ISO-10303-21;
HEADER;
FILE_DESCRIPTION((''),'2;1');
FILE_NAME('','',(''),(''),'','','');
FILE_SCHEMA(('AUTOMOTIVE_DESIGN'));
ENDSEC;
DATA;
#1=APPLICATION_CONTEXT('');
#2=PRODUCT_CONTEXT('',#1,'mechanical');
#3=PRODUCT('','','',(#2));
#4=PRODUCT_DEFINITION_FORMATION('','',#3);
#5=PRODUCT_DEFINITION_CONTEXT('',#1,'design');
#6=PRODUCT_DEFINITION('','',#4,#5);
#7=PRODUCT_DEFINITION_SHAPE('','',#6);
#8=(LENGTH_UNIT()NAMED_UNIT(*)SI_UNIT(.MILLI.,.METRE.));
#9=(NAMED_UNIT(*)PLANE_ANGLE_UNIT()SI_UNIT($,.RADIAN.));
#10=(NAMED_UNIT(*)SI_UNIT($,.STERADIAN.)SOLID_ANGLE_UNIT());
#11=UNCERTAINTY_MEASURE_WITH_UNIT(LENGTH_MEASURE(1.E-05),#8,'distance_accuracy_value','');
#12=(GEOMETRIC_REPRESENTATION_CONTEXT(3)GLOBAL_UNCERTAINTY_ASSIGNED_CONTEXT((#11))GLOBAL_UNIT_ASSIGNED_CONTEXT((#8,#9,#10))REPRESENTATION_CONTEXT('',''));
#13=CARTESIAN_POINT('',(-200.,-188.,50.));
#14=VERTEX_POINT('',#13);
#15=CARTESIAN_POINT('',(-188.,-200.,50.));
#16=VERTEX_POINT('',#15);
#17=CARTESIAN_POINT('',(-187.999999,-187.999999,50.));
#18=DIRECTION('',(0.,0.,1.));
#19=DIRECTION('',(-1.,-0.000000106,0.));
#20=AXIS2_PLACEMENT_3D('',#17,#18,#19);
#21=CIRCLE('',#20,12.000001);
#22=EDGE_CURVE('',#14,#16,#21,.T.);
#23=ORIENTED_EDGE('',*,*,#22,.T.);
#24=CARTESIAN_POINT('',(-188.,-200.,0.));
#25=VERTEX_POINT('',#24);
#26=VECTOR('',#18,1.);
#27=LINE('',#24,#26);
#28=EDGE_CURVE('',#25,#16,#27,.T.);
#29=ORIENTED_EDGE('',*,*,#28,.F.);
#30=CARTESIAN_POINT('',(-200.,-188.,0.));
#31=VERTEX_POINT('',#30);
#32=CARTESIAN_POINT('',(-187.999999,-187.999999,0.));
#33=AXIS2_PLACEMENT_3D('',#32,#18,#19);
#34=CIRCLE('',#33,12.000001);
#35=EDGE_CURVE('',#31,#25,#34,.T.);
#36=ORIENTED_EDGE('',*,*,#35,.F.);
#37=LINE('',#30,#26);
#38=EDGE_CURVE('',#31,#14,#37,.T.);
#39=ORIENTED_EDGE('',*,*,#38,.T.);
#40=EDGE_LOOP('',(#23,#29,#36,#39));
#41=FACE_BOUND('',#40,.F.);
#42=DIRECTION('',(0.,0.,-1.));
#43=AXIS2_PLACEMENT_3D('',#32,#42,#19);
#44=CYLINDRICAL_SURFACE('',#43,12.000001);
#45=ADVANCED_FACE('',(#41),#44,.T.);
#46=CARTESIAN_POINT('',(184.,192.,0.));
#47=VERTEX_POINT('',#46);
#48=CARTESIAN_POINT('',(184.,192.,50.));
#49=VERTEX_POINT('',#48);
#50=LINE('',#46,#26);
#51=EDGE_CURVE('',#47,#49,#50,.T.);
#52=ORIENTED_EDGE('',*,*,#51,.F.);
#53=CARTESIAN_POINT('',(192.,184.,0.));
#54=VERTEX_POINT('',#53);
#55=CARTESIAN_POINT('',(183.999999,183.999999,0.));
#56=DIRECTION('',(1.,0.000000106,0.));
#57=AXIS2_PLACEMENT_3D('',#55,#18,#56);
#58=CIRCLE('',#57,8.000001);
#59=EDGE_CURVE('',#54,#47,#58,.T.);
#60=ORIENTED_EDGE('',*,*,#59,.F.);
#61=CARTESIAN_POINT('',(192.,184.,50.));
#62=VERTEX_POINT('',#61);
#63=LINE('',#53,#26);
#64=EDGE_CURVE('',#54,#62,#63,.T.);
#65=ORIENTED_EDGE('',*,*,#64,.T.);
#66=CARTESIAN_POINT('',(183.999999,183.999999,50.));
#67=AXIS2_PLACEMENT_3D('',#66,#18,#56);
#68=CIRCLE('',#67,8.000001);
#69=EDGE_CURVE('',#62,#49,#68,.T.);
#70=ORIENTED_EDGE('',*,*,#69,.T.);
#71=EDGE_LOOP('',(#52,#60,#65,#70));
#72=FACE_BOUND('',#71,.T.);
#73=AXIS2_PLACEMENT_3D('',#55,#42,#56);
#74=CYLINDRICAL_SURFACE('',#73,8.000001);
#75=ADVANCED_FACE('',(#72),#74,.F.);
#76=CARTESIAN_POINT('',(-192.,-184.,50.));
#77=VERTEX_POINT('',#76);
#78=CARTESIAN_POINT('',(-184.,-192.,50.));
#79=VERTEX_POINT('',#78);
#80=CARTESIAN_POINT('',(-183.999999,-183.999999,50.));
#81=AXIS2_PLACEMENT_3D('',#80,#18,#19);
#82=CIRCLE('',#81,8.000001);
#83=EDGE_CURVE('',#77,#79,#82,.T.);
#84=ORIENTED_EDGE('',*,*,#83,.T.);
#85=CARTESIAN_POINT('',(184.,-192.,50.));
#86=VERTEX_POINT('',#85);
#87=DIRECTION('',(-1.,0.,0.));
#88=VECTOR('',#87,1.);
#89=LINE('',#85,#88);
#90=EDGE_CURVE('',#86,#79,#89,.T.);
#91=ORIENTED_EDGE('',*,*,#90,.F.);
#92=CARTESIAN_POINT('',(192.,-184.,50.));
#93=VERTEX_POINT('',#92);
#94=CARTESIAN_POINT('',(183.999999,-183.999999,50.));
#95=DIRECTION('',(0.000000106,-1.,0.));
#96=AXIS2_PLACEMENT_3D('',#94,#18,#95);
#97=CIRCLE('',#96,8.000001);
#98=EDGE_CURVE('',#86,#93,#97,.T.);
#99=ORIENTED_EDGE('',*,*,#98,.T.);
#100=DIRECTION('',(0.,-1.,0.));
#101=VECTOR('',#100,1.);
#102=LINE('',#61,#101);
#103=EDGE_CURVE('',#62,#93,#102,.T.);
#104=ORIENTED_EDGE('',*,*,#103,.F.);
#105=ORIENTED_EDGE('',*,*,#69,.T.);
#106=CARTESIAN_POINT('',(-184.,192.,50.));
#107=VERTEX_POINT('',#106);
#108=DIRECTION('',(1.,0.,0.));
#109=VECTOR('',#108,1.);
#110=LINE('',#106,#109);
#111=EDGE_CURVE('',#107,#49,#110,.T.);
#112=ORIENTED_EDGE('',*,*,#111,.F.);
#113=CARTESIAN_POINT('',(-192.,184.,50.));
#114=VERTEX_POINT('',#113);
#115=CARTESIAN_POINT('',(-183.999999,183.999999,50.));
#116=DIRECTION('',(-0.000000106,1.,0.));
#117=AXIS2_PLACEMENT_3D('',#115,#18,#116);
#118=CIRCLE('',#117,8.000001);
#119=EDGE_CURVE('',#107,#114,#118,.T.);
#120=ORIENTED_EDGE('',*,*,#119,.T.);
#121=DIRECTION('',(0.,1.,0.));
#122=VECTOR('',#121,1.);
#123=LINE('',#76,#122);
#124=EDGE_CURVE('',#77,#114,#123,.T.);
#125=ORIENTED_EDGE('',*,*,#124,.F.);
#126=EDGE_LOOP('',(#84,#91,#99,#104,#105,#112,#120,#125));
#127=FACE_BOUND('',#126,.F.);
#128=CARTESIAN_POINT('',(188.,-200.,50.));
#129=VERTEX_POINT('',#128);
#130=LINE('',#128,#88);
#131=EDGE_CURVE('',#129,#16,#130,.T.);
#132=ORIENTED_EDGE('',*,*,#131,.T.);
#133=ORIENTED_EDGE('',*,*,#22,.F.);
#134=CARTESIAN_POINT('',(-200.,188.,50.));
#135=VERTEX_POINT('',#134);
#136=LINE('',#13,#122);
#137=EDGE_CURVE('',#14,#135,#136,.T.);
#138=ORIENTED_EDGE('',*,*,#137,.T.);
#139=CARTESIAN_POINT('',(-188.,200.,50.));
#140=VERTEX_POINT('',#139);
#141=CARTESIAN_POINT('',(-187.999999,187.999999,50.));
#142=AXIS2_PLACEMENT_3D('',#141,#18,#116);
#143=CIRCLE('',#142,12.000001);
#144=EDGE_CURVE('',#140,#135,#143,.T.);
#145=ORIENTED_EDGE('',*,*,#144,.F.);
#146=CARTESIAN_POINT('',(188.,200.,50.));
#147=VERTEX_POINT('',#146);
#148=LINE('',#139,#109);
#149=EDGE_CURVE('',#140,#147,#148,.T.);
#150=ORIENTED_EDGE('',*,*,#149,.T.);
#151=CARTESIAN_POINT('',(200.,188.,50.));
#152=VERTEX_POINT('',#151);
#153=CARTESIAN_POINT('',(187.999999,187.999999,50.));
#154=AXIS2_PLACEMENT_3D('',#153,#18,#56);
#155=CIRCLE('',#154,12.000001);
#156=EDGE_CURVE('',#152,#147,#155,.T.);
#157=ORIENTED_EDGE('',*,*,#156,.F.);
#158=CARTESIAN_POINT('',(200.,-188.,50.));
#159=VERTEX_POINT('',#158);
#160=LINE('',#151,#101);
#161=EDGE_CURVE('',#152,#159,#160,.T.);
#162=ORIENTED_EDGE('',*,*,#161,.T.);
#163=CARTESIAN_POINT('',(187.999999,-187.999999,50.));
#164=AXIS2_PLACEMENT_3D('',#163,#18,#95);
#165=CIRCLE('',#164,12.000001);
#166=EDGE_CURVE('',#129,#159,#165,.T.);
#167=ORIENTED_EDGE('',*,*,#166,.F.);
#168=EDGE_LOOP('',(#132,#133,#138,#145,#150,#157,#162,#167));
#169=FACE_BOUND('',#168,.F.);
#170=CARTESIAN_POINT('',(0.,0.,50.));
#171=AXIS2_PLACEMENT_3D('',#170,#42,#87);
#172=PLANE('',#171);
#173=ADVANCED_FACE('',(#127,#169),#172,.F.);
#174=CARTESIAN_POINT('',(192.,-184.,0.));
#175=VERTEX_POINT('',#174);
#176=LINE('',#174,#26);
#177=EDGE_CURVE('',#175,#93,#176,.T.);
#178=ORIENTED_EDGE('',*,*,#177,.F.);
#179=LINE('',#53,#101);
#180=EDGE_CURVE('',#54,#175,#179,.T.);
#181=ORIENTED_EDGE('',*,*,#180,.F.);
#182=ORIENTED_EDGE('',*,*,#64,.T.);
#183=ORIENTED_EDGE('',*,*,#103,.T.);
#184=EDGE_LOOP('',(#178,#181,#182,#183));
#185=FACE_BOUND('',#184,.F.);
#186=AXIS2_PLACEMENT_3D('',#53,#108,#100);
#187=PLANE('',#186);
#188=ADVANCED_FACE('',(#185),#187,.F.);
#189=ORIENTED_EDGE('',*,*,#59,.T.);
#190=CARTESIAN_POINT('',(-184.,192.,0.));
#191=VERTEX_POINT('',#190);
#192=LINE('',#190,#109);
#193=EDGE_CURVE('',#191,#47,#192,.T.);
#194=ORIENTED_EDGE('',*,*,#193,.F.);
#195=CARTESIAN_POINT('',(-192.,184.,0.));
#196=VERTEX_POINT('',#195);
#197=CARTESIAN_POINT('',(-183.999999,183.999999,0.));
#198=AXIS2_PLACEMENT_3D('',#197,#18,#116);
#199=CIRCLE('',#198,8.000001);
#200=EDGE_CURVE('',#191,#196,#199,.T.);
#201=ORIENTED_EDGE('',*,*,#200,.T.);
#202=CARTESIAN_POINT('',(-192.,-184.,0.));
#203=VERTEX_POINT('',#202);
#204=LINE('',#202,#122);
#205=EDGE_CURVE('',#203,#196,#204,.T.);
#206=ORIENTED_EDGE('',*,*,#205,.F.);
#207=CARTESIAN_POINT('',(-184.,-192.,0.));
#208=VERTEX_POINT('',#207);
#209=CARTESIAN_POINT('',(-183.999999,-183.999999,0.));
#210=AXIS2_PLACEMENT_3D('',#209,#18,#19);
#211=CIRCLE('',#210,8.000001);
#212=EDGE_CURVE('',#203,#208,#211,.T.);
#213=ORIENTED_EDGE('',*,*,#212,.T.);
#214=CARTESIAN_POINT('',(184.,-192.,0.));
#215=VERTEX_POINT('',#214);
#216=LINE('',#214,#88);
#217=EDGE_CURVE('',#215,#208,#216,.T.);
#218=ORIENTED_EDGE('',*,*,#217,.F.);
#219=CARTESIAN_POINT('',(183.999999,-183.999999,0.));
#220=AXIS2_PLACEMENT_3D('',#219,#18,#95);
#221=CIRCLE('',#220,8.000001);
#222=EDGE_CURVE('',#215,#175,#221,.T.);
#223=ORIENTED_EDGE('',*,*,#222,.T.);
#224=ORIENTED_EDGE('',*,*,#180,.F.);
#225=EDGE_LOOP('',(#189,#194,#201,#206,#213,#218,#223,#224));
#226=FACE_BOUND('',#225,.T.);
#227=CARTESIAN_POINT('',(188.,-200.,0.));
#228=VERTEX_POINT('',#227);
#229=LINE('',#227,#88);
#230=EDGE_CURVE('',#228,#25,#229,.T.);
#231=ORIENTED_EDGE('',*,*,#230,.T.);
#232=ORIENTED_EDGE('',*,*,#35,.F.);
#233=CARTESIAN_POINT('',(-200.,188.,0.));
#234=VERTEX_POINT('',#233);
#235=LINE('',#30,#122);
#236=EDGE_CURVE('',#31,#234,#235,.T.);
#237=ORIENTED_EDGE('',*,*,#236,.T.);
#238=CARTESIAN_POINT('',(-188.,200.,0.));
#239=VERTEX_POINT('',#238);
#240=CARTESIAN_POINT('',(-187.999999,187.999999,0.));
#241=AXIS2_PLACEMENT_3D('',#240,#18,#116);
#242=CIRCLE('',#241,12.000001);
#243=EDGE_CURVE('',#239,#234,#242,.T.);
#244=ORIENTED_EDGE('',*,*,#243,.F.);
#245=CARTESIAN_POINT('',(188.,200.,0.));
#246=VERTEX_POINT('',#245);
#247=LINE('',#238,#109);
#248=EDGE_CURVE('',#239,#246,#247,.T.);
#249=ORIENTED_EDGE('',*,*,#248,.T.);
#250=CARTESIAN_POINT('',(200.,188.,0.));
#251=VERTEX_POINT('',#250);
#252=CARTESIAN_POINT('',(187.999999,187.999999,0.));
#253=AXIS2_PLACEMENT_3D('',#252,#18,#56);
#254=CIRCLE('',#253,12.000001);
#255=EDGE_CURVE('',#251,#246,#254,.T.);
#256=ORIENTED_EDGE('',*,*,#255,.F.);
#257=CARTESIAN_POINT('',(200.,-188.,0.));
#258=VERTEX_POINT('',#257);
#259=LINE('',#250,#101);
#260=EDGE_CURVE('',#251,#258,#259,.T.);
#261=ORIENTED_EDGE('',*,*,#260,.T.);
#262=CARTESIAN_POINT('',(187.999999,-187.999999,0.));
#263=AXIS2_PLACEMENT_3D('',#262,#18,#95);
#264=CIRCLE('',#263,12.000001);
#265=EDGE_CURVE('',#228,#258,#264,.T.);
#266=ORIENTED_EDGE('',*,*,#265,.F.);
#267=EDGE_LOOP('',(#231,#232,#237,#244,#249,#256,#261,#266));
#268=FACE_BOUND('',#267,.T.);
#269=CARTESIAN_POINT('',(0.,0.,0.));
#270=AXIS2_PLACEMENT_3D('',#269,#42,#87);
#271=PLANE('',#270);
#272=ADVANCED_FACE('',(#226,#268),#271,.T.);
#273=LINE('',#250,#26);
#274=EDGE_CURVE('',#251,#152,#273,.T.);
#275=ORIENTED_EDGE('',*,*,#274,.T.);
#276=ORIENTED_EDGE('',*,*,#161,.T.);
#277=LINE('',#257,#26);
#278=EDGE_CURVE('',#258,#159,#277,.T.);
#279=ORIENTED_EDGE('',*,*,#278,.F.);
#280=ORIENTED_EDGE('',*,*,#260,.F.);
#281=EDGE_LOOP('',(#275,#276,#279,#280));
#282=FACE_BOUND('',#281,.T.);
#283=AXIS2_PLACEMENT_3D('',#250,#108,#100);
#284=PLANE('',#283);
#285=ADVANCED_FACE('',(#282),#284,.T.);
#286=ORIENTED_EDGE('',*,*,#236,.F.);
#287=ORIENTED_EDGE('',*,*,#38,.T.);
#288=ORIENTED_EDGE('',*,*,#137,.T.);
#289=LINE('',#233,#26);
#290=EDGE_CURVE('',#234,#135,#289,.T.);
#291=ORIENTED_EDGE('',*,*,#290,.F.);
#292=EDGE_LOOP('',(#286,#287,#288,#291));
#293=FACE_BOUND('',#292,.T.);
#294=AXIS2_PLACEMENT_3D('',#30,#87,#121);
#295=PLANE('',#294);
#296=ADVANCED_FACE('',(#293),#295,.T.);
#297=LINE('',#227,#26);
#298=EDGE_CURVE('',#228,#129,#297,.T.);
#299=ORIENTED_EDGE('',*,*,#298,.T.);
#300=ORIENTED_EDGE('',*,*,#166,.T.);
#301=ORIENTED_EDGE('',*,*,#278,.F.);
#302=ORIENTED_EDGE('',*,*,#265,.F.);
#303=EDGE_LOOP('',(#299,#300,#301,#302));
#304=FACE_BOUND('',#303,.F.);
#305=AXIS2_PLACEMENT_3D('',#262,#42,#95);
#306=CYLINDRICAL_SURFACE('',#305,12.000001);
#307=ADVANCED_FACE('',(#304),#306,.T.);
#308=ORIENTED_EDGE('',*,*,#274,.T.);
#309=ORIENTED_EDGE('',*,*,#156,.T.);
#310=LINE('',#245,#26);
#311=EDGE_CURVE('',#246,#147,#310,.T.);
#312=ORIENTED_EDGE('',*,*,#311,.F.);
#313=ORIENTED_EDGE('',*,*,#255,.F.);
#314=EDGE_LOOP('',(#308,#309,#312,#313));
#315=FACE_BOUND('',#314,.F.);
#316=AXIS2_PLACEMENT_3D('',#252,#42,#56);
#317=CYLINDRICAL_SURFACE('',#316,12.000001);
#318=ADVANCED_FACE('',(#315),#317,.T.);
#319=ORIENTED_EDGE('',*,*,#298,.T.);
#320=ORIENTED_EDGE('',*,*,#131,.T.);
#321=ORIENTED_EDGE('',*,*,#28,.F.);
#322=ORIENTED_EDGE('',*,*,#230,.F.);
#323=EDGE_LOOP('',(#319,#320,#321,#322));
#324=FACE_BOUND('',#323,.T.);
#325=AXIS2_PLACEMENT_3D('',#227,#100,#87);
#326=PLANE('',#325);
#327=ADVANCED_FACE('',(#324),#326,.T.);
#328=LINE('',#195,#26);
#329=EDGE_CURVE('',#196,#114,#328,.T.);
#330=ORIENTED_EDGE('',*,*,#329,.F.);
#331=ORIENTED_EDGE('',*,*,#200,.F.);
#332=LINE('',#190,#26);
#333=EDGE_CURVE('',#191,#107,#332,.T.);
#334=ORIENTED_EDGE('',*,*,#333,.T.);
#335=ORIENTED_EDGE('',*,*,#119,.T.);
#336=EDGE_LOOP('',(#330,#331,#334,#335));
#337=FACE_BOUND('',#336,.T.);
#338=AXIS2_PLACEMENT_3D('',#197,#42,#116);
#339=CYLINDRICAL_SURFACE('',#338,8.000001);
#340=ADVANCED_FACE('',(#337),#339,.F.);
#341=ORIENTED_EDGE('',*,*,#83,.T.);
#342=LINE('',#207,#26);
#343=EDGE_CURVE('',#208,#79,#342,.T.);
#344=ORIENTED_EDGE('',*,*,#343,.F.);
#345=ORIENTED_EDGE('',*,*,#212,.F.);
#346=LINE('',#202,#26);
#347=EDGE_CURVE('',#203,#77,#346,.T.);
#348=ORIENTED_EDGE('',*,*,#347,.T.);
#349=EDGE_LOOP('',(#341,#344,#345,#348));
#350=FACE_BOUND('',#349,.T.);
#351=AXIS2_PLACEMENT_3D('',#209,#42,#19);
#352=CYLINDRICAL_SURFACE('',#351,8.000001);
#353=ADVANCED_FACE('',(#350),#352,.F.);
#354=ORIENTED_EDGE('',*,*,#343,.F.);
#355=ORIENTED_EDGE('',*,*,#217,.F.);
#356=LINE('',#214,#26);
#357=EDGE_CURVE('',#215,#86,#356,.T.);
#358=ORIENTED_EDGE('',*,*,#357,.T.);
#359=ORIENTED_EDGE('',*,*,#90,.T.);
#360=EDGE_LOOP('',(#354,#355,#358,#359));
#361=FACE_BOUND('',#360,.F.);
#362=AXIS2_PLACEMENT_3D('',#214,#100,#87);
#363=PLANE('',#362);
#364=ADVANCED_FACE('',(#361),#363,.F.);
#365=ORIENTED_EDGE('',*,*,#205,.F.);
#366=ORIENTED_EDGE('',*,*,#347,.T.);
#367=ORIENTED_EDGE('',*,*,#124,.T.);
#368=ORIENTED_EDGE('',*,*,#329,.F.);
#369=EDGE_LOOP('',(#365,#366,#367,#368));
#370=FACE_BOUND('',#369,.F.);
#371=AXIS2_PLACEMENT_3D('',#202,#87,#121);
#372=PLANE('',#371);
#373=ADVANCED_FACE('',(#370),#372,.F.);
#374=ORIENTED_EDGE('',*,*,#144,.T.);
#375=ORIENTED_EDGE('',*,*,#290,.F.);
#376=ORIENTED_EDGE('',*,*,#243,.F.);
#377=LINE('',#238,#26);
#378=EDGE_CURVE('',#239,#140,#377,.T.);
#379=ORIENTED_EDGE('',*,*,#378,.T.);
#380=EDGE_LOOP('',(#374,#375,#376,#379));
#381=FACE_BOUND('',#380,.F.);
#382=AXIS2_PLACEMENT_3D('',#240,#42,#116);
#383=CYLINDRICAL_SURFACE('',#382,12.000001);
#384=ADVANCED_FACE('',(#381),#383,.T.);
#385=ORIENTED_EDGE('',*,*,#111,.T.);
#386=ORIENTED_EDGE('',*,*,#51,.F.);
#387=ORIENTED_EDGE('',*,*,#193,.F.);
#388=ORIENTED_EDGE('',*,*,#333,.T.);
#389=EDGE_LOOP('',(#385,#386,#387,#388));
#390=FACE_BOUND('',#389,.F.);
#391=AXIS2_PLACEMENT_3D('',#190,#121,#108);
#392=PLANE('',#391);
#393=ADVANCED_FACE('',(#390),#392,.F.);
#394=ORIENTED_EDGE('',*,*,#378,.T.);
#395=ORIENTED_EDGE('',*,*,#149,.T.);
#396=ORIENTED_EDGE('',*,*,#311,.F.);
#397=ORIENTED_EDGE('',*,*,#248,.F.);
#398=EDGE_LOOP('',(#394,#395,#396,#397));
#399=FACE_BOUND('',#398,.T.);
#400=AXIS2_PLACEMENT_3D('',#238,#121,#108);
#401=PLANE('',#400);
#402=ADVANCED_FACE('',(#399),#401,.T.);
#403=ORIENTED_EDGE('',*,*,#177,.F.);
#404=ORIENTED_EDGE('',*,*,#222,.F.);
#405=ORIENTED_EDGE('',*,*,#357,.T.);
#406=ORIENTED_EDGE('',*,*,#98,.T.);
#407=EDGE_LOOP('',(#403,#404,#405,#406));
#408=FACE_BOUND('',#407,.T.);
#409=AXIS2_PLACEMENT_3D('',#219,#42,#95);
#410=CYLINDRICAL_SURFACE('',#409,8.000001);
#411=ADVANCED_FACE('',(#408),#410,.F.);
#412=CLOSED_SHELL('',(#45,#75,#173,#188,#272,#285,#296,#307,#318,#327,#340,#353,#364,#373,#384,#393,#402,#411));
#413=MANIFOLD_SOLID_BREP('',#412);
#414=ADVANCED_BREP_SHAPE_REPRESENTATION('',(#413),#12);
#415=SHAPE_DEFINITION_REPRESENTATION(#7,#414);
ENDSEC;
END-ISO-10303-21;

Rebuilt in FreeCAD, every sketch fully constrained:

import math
import FreeCAD as App
import Part
import Sketcher

V = App.Vector
Q = App.Units.Quantity

doc = App.newDocument("Part")
body = doc.addObject("PartDesign::Body", "Body")

# Sketch on XY plane
sketch1 = body.newObject("Sketcher::SketchObject", "Sketch")
sketch1.AttachmentSupport = (doc.getObject("XY_Plane"), [""])
sketch1.MapMode = "FlatFace"
sketch1.addGeometry(Part.LineSegment(V(188, 200, 0), V(-188, 200, 0)), False)
sketch1.addGeometry(Part.ArcOfCircle(Part.Circle(V(-188, 188, 0), V(0, 0, 1), 12), math.radians(90), math.radians(180)), False)
sketch1.addGeometry(Part.LineSegment(V(-200, 188, 0), V(-200, -188, 0)), False)
sketch1.addGeometry(Part.ArcOfCircle(Part.Circle(V(-188, -188, 0), V(0, 0, 1), 12), math.radians(-180), math.radians(-90)), False)
sketch1.addGeometry(Part.LineSegment(V(-188, -200, 0), V(188, -200, 0)), False)
sketch1.addGeometry(Part.ArcOfCircle(Part.Circle(V(188, -188, 0), V(0, 0, 1), 12), math.radians(-90), math.radians(0)), False)
sketch1.addGeometry(Part.LineSegment(V(200, -188, 0), V(200, 188, 0)), False)
sketch1.addGeometry(Part.ArcOfCircle(Part.Circle(V(188, 188, 0), V(0, 0, 1), 12), math.radians(0), math.radians(90)), False)
sketch1.addGeometry(Part.LineSegment(V(-184, 192, 0), V(184, 192, 0)), False)
sketch1.addGeometry(Part.ArcOfCircle(Part.Circle(V(184, 184, 0), V(0, 0, 1), 8), math.radians(0), math.radians(90)), False)
sketch1.addGeometry(Part.LineSegment(V(192, 184, 0), V(192, -184, 0)), False)
sketch1.addGeometry(Part.ArcOfCircle(Part.Circle(V(184, -184, 0), V(0, 0, 1), 8), math.radians(-90), math.radians(0)), False)
sketch1.addGeometry(Part.LineSegment(V(184, -192, 0), V(-184, -192, 0)), False)
sketch1.addGeometry(Part.ArcOfCircle(Part.Circle(V(-184, -184, 0), V(0, 0, 1), 8), math.radians(-180), math.radians(-90)), False)
sketch1.addGeometry(Part.LineSegment(V(-192, -184, 0), V(-192, 184, 0)), False)
sketch1.addGeometry(Part.ArcOfCircle(Part.Circle(V(-184, 184, 0), V(0, 0, 1), 8), math.radians(90), math.radians(180)), False)
sketch1.addConstraint(Sketcher.Constraint("Tangent", 0, 2, 1, 1))
sketch1.addConstraint(Sketcher.Constraint("Tangent", 1, 2, 2, 1))
sketch1.addConstraint(Sketcher.Constraint("Tangent", 2, 2, 3, 1))
sketch1.addConstraint(Sketcher.Constraint("Tangent", 3, 2, 4, 1))
sketch1.addConstraint(Sketcher.Constraint("Tangent", 4, 2, 5, 1))
sketch1.addConstraint(Sketcher.Constraint("Tangent", 5, 2, 6, 1))
sketch1.addConstraint(Sketcher.Constraint("Tangent", 6, 2, 7, 1))
sketch1.addConstraint(Sketcher.Constraint("Tangent", 7, 2, 0, 1))
sketch1.addConstraint(Sketcher.Constraint("Tangent", 8, 2, 9, 2))
sketch1.addConstraint(Sketcher.Constraint("Tangent", 9, 1, 10, 1))
sketch1.addConstraint(Sketcher.Constraint("Tangent", 10, 2, 11, 2))
sketch1.addConstraint(Sketcher.Constraint("Tangent", 11, 1, 12, 1))
sketch1.addConstraint(Sketcher.Constraint("Tangent", 12, 2, 13, 2))
sketch1.addConstraint(Sketcher.Constraint("Tangent", 13, 1, 14, 1))
sketch1.addConstraint(Sketcher.Constraint("Tangent", 14, 2, 15, 2))
sketch1.addConstraint(Sketcher.Constraint("Tangent", 15, 1, 8, 1))
sketch1.addConstraint(Sketcher.Constraint("Horizontal", 0))
sketch1.addConstraint(Sketcher.Constraint("Vertical", 2))
sketch1.addConstraint(Sketcher.Constraint("Horizontal", 4))
sketch1.addConstraint(Sketcher.Constraint("Vertical", 6))
sketch1.addConstraint(Sketcher.Constraint("Horizontal", 8))
sketch1.addConstraint(Sketcher.Constraint("Vertical", 10))
sketch1.addConstraint(Sketcher.Constraint("Horizontal", 12))
sketch1.addConstraint(Sketcher.Constraint("Vertical", 14))
sketch1.addConstraint(Sketcher.Constraint("Equal", 1, 3))
sketch1.addConstraint(Sketcher.Constraint("Equal", 3, 5))
sketch1.addConstraint(Sketcher.Constraint("Equal", 5, 7))
sketch1.addConstraint(Sketcher.Constraint("Equal", 9, 11))
sketch1.addConstraint(Sketcher.Constraint("Equal", 11, 13))
sketch1.addConstraint(Sketcher.Constraint("Equal", 13, 15))
sketch1.addConstraint(Sketcher.Constraint("Symmetric", 1, 3, 5, 3, -1, 1))
sketch1.addConstraint(Sketcher.Constraint("Symmetric", 9, 3, 13, 3, -1, 1))
sketch1.addConstraint(Sketcher.Constraint("Equal", 4, 2))
sketch1.addConstraint(Sketcher.Constraint("Equal", 12, 10))
sketch1.addConstraint(Sketcher.Constraint("Radius", 1, Q("12.000001 mm")))
sketch1.addConstraint(Sketcher.Constraint("Radius", 9, Q("8.000001 mm")))
sketch1.addConstraint(Sketcher.Constraint("DistanceX", 0, 2, 0, 1, Q("376 mm")))
sketch1.addConstraint(Sketcher.Constraint("DistanceX", 8, 1, 8, 2, Q("368 mm")))
pad1 = body.newObject("PartDesign::Pad", "Pad")
pad1.Profile = sketch1
pad1.Length = 50

doc.recompute()
